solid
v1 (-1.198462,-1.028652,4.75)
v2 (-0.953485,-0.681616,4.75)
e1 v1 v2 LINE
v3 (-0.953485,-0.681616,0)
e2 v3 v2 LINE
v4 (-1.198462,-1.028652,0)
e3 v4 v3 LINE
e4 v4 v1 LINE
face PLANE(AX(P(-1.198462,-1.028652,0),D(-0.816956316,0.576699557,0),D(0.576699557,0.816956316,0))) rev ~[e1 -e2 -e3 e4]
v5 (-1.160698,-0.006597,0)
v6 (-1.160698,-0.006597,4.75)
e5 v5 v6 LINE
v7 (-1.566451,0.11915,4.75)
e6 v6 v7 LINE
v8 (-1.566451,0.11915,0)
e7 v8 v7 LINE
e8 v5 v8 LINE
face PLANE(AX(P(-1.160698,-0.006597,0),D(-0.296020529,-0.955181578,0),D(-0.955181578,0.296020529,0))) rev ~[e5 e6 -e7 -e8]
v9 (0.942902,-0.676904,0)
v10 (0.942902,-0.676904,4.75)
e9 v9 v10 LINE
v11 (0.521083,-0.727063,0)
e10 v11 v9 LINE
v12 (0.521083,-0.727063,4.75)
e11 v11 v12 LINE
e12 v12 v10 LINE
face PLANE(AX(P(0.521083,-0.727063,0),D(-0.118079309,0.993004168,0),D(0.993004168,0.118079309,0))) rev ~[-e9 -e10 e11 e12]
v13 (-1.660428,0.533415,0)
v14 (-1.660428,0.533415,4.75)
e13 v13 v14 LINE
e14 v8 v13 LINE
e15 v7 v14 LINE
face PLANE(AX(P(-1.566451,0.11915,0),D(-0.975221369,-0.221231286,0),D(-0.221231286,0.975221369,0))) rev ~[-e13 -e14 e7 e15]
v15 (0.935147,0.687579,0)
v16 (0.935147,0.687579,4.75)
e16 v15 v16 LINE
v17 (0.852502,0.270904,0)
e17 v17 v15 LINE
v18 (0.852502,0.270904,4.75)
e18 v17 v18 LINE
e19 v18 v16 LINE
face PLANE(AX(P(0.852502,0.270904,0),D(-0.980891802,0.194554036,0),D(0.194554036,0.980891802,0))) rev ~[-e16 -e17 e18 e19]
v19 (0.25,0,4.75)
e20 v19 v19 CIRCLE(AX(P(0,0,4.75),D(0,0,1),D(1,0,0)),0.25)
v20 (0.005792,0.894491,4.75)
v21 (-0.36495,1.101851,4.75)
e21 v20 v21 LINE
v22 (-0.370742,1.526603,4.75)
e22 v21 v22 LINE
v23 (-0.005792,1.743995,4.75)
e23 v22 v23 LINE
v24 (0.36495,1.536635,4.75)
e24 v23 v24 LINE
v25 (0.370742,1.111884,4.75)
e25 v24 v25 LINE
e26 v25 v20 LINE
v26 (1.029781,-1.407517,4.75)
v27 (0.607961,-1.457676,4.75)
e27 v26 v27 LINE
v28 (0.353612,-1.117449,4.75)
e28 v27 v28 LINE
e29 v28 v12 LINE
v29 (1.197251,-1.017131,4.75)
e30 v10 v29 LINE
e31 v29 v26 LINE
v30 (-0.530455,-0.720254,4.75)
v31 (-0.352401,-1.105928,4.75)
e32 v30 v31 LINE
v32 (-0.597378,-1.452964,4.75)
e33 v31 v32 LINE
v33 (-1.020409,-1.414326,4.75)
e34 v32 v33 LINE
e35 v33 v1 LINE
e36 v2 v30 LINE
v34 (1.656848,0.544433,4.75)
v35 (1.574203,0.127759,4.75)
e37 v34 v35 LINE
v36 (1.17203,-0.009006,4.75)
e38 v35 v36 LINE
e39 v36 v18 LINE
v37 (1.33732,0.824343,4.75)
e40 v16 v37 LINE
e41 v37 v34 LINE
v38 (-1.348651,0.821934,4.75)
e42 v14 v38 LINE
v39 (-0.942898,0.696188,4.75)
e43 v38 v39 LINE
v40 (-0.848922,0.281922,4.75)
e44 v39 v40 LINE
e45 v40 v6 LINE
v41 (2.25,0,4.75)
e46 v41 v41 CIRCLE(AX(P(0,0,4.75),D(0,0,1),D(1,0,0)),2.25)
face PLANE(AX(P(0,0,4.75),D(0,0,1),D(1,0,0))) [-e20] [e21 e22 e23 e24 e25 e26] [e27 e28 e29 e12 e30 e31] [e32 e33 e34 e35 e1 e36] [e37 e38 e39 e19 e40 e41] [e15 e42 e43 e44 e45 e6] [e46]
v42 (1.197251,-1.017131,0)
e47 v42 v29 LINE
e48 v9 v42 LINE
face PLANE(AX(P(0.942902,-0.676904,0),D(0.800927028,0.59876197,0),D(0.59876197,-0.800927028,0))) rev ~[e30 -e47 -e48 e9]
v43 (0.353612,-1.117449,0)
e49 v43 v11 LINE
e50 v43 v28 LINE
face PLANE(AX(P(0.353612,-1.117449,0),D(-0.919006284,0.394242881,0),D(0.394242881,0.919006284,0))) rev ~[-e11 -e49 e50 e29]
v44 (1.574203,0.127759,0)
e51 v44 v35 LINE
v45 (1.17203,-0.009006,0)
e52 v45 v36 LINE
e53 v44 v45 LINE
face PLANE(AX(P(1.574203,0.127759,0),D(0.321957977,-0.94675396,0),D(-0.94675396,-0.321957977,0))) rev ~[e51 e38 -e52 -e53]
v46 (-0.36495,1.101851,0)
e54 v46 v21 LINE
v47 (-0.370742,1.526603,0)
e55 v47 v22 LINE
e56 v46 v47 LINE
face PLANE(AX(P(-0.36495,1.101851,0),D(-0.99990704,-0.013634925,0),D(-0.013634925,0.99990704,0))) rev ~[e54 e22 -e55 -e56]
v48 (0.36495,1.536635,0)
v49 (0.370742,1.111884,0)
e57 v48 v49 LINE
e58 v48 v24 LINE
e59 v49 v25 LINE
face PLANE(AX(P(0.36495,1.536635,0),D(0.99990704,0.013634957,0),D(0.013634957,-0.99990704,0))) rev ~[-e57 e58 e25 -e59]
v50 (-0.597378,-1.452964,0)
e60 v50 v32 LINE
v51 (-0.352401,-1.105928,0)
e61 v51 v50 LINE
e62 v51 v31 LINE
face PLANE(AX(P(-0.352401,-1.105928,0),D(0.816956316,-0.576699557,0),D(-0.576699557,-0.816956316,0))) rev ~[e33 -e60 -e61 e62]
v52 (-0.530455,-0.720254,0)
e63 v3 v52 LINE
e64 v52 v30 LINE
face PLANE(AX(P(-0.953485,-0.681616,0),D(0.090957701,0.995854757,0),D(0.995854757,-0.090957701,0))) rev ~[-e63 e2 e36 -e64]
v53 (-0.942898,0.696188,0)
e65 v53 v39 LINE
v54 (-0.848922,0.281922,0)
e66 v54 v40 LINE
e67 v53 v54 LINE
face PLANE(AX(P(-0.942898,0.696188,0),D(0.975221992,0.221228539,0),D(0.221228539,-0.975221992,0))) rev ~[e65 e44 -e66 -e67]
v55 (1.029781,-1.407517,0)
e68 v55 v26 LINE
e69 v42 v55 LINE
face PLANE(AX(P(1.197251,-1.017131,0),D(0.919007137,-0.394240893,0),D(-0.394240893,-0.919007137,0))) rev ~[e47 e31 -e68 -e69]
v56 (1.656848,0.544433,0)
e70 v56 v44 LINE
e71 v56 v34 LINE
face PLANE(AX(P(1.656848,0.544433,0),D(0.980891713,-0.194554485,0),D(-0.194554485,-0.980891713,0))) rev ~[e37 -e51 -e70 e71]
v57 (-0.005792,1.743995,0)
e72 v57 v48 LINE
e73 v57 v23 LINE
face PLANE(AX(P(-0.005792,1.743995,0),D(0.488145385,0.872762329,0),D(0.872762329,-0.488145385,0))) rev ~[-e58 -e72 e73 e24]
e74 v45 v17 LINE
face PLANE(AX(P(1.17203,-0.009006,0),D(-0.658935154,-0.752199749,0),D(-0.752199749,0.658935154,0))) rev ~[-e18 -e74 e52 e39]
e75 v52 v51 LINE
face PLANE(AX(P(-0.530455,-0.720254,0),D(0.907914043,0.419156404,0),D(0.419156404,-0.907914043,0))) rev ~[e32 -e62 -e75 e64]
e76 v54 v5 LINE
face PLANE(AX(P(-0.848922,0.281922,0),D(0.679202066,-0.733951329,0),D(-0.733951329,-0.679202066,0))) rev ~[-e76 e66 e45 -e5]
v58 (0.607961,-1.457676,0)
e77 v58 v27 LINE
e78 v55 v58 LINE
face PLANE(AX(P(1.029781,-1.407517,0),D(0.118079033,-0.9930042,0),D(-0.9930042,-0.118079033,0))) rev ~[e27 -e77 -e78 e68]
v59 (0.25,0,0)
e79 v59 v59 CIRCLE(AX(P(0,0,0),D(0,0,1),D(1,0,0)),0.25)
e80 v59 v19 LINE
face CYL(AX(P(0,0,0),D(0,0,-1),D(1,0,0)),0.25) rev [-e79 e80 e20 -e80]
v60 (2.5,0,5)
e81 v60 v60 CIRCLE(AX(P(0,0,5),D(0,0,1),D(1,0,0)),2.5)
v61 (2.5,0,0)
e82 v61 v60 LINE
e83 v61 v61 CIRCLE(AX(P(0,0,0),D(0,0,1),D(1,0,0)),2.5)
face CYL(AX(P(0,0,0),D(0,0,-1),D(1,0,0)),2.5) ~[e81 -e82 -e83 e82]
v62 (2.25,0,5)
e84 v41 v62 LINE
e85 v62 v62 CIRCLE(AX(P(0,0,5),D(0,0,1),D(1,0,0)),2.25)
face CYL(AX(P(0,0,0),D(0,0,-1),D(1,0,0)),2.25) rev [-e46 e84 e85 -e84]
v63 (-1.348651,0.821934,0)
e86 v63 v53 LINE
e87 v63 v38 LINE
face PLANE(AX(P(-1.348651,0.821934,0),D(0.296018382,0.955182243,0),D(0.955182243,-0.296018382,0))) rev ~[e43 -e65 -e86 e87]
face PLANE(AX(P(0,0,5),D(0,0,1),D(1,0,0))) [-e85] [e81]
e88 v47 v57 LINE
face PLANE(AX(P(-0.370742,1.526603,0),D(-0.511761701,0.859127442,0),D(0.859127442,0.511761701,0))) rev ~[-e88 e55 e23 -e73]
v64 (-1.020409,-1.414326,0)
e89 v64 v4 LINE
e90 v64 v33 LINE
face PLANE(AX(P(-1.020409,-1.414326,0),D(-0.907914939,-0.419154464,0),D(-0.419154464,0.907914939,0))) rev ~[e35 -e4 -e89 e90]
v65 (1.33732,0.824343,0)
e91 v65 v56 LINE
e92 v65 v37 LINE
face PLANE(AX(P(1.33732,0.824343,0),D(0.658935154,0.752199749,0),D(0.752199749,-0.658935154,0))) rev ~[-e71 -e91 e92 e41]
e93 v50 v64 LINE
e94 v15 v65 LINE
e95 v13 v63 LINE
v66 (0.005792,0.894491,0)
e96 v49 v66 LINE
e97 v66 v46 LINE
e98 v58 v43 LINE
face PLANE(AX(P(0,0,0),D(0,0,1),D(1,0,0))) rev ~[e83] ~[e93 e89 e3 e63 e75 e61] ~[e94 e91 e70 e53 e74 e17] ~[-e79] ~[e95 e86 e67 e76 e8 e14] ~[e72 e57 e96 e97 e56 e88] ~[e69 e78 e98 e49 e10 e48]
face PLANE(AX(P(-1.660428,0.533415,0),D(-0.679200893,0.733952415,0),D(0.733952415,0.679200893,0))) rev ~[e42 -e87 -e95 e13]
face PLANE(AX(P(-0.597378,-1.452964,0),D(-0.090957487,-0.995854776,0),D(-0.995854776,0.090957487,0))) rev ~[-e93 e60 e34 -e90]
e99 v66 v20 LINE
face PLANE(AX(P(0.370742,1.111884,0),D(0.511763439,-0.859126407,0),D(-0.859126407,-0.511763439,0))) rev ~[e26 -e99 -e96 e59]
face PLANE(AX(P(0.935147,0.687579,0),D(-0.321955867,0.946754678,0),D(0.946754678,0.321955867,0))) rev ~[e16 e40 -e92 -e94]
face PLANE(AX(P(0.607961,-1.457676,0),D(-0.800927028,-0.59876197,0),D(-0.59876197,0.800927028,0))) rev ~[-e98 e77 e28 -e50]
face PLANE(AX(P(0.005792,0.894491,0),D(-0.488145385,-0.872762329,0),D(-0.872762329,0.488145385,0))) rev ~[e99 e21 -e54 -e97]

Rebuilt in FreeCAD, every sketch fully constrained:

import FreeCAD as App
import Part
import Sketcher
from FreeCAD import Vector
Q = App.Units.Quantity

doc = App.newDocument("Part")
body = doc.addObject("PartDesign::Body", "Body")

# Sketch on XY plane
sketch1 = body.newObject("Sketcher::SketchObject", "Sketch")
sketch1.AttachmentSupport = (doc.getObject("XY_Plane"), [""])
sketch1.MapMode = "FlatFace"
sketch1.addGeometry([
    Part.Circle(Vector(0, 0, 0), Vector(0, 0, 1), 2.5),
    Part.Circle(Vector(0, 0, 0), Vector(0, 0, 1), 2.25),
], False)
sketch1.addConstraint([
    Sketcher.Constraint("Coincident", 0, 3, -1, 1),
    Sketcher.Constraint("Coincident", 1, 3, -1, 1),
    Sketcher.Constraint("Diameter", 0, Q("5 mm")),
    Sketcher.Constraint("Diameter", 1, Q("4.5 mm")),
])
pad1 = body.newObject("PartDesign::Pad", "Pad")
pad1.Profile = sketch1
pad1.Length = 5

# Sketch on XY plane
sketch2 = body.newObject("Sketcher::SketchObject", "Sketch001")
sketch2.AttachmentSupport = (doc.getObject("XY_Plane"), [""])
sketch2.MapMode = "FlatFace"
sketch2.addGeometry([
    Part.Circle(Vector(0, 0, 0), Vector(0, 0, 1), 2.25),  # 0
    Part.LineSegment(Vector(-1.020409, -1.414326, 0), Vector(-1.198462, -1.028652, 0)),  # 1
    Part.LineSegment(Vector(-1.198462, -1.028652, 0), Vector(-0.953485, -0.681616, 0)),  # 2
    Part.LineSegment(Vector(-0.953485, -0.681616, 0), Vector(-0.530455, -0.720254, 0)),  # 3
    Part.LineSegment(Vector(-0.530455, -0.720254, 0), Vector(-0.352401, -1.105928, 0)),  # 4
    Part.LineSegment(Vector(-0.352401, -1.105928, 0), Vector(-0.597378, -1.452964, 0)),  # 5
    Part.LineSegment(Vector(-0.597378, -1.452964, 0), Vector(-1.020409, -1.414326, 0)),  # 6
    Part.LineSegment(Vector(1.029781, -1.407517, 0), Vector(0.607961, -1.457676, 0)),  # 7
    Part.LineSegment(Vector(0.607961, -1.457676, 0), Vector(0.353612, -1.117449, 0)),  # 8
    Part.LineSegment(Vector(0.353612, -1.117449, 0), Vector(0.521083, -0.727063, 0)),  # 9
    Part.LineSegment(Vector(0.521083, -0.727063, 0), Vector(0.942902, -0.676904, 0)),  # 10
    Part.LineSegment(Vector(0.942902, -0.676904, 0), Vector(1.197251, -1.017131, 0)),  # 11
    Part.LineSegment(Vector(1.197251, -1.017131, 0), Vector(1.029781, -1.407517, 0)),  # 12
    Part.Circle(Vector(0, 0, 0), Vector(0, 0, 1), 0.25),  # 13
    Part.LineSegment(Vector(-1.660428, 0.533415, 0), Vector(-1.348651, 0.821934, 0)),  # 14
    Part.LineSegment(Vector(-1.348651, 0.821934, 0), Vector(-0.942898, 0.696188, 0)),  # 15
    Part.LineSegment(Vector(-0.942898, 0.696188, 0), Vector(-0.848922, 0.281922, 0)),  # 16
    Part.LineSegment(Vector(-0.848922, 0.281922, 0), Vector(-1.160698, -0.006597, 0)),  # 17
    Part.LineSegment(Vector(-1.160698, -0.006597, 0), Vector(-1.566451, 0.11915, 0)),  # 18
    Part.LineSegment(Vector(-1.566451, 0.11915, 0), Vector(-1.660428, 0.533415, 0)),  # 19
    Part.LineSegment(Vector(1.656848, 0.544433, 0), Vector(1.574203, 0.127759, 0)),  # 20
    Part.LineSegment(Vector(1.574203, 0.127759, 0), Vector(1.17203, -0.009006, 0)),  # 21
    Part.LineSegment(Vector(1.17203, -0.009006, 0), Vector(0.852502, 0.270904, 0)),  # 22
    Part.LineSegment(Vector(0.852502, 0.270904, 0), Vector(0.935147, 0.687579, 0)),  # 23
    Part.LineSegment(Vector(0.935147, 0.687579, 0), Vector(1.33732, 0.824343, 0)),  # 24
    Part.LineSegment(Vector(1.33732, 0.824343, 0), Vector(1.656848, 0.544433, 0)),  # 25
    Part.LineSegment(Vector(0.36495, 1.536635, 0), Vector(0.370742, 1.111884, 0)),  # 26
    Part.LineSegment(Vector(0.370742, 1.111884, 0), Vector(0.005792, 0.894491, 0)),  # 27
    Part.LineSegment(Vector(0.005792, 0.894491, 0), Vector(-0.36495, 1.101851, 0)),  # 28
    Part.LineSegment(Vector(-0.36495, 1.101851, 0), Vector(-0.370742, 1.526603, 0)),  # 29
    Part.LineSegment(Vector(-0.370742, 1.526603, 0), Vector(-0.005792, 1.743995, 0)),  # 30
    Part.LineSegment(Vector(-0.005792, 1.743995, 0), Vector(0.36495, 1.536635, 0)),  # 31
], False)
sketch2.addConstraint([
    Sketcher.Constraint("Coincident", 1, 2, 2, 1),
    Sketcher.Constraint("Coincident", 2, 2, 3, 1),
    Sketcher.Constraint("Coincident", 3, 2, 4, 1),
    Sketcher.Constraint("Coincident", 4, 2, 5, 1),
    Sketcher.Constraint("Coincident", 5, 2, 6, 1),
    Sketcher.Constraint("Coincident", 6, 2, 1, 1),
    Sketcher.Constraint("Coincident", 7, 2, 8, 1),
    Sketcher.Constraint("Coincident", 8, 2, 9, 1),
    Sketcher.Constraint("Coincident", 9, 2, 10, 1),
    Sketcher.Constraint("Coincident", 10, 2, 11, 1),
    Sketcher.Constraint("Coincident", 11, 2, 12, 1),
    Sketcher.Constraint("Coincident", 12, 2, 7, 1),
    Sketcher.Constraint("Coincident", 14, 2, 15, 1),
    Sketcher.Constraint("Coincident", 15, 2, 16, 1),
    Sketcher.Constraint("Coincident", 16, 2, 17, 1),
    Sketcher.Constraint("Coincident", 17, 2, 18, 1),
    Sketcher.Constraint("Coincident", 18, 2, 19, 1),
    Sketcher.Constraint("Coincident", 19, 2, 14, 1),
    Sketcher.Constraint("Coincident", 20, 2, 21, 1),
    Sketcher.Constraint("Coincident", 21, 2, 22, 1),
    Sketcher.Constraint("Coincident", 22, 2, 23, 1),
    Sketcher.Constraint("Coincident", 23, 2, 24, 1),
    Sketcher.Constraint("Coincident", 24, 2, 25, 1),
    Sketcher.Constraint("Coincident", 25, 2, 20, 1),
    Sketcher.Constraint("Coincident", 26, 2, 27, 1),
    Sketcher.Constraint("Coincident", 27, 2, 28, 1),
    Sketcher.Constraint("Coincident", 28, 2, 29, 1),
    Sketcher.Constraint("Coincident", 29, 2, 30, 1),
    Sketcher.Constraint("Coincident", 30, 2, 31, 1),
    Sketcher.Constraint("Coincident", 31, 2, 26, 1),
    Sketcher.Constraint("Coincident", 0, 3, -1, 1),
    Sketcher.Constraint("Coincident", 13, 3, -1, 1),
    Sketcher.Constraint("Parallel", 2, 5),
    Sketcher.Constraint("Parallel", 3, 6),
    Sketcher.Constraint("Parallel", 7, 10),
    Sketcher.Constraint("Parallel", 8, 11),
    Sketcher.Constraint("Parallel", 14, 17),
    Sketcher.Constraint("Parallel", 20, 23),
    Sketcher.Constraint("Parallel", 22, 25),
    Sketcher.Constraint("Parallel", 26, 29),
    Sketcher.Constraint("Parallel", 28, 31),
    Sketcher.Constraint("Equal", 1, 2),
    Sketcher.Constraint("Equal", 2, 3),
    Sketcher.Constraint("Equal", 3, 4),
    Sketcher.Constraint("Equal", 4, 5),
    Sketcher.Constraint("Equal", 6, 7),
    Sketcher.Constraint("Equal", 7, 8),
    Sketcher.Constraint("Equal", 8, 9),
    Sketcher.Constraint("Equal", 9, 10),
    Sketcher.Constraint("Equal", 10, 11),
    Sketcher.Constraint("Equal", 12, 14),
    Sketcher.Constraint("Equal", 14, 15),
    Sketcher.Constraint("Equal", 15, 16),
    Sketcher.Constraint("Equal", 16, 17),
    Sketcher.Constraint("Equal", 17, 18),
    Sketcher.Constraint("Equal", 18, 19),
    Sketcher.Constraint("Equal", 19, 20),
    Sketcher.Constraint("Equal", 20, 21),
    Sketcher.Constraint("Equal", 21, 22),
    Sketcher.Constraint("Equal", 22, 23),
    Sketcher.Constraint("Equal", 23, 24),
    Sketcher.Constraint("Equal", 25, 26),
    Sketcher.Constraint("Equal", 26, 27),
    Sketcher.Constraint("Equal", 27, 28),
    Sketcher.Constraint("Equal", 28, 29),
    Sketcher.Constraint("Equal", 29, 30),
    Sketcher.Constraint("Diameter", 0, Q("4.5 mm")),
    Sketcher.Constraint("Diameter", 13, Q("0.5 mm")),
    Sketcher.Constraint("DistanceX", 4, 2, -1, 1, Q("0.352401 mm")),
    Sketcher.Constraint("DistanceX", 15, 2, -1, 1, Q("0.942898 mm")),
    Sketcher.Constraint("DistanceX", -1, 1, 22, 2, Q("0.852502 mm")),
    Sketcher.Constraint("DistanceX", 9, 2, 12, 2, Q("0.508698 mm")),
    Sketcher.Constraint("DistanceX", 17, 2, 15, 2, Q("0.2178 mm")),
    Sketcher.Constraint("DistanceX", 10, 2, 20, 2, Q("0.631301 mm")),
    Sketcher.Constraint("DistanceX", 22, 2, 20, 2, Q("0.721701 mm")),
    Sketcher.Constraint("DistanceX", 14, 2, 28, 2, Q("0.983701 mm")),
    Sketcher.Constraint("DistanceX", 28, 2, 31, 2, Q("0.7299 mm")),
    Sketcher.Constraint("Distance", 1, Q("0.424791 mm")),
    Sketcher.Constraint("DistanceX", 1, 2, -1, 1, Q("1.198462 mm")),
    Sketcher.Constraint("DistanceY", 1, 2, -1, 1, Q("1.028652 mm")),
    Sketcher.Constraint("DistanceX", 6, 2, -1, 1, Q("1.020409 mm")),
    Sketcher.Constraint("DistanceX", -1, 1, 7, 2, Q("0.607961 mm")),
    Sketcher.Constraint("DistanceY", 8, 2, -1, 1, Q("1.117449 mm")),
    Sketcher.Constraint("DistanceX", -1, 1, 11, 2, Q("1.197251 mm")),
    Sketcher.Constraint("DistanceX", 14, 2, -1, 1, Q("1.348651 mm")),
    Sketcher.Constraint("DistanceY", -1, 1, 15, 2, Q("0.696188 mm")),
    Sketcher.Constraint("DistanceX", 16, 2, -1, 1, Q("0.848922 mm")),
    Sketcher.Constraint("DistanceY", -1, 1, 20, 2, Q("0.127759 mm")),
    Sketcher.Constraint("DistanceX", -1, 1, 21, 2, Q("1.17203 mm")),
    Sketcher.Constraint("DistanceY", -1, 1, 23, 2, Q("0.687579 mm")),
    Sketcher.Constraint("DistanceY", -1, 1, 27, 2, Q("0.894491 mm")),
    Sketcher.Constraint("DistanceY", -1, 1, 28, 2, Q("1.101851 mm")),
    Sketcher.Constraint("DistanceX", 2, 2, 3, 2, Q("0.42303 mm")),
    Sketcher.Constraint("DistanceX", 26, 2, 22, 2, Q("0.48176 mm")),
])
pad2 = body.newObject("PartDesign::Pad", "Pad001")
pad2.Profile = sketch2
pad2.Length = 4.75

doc.recompute()
